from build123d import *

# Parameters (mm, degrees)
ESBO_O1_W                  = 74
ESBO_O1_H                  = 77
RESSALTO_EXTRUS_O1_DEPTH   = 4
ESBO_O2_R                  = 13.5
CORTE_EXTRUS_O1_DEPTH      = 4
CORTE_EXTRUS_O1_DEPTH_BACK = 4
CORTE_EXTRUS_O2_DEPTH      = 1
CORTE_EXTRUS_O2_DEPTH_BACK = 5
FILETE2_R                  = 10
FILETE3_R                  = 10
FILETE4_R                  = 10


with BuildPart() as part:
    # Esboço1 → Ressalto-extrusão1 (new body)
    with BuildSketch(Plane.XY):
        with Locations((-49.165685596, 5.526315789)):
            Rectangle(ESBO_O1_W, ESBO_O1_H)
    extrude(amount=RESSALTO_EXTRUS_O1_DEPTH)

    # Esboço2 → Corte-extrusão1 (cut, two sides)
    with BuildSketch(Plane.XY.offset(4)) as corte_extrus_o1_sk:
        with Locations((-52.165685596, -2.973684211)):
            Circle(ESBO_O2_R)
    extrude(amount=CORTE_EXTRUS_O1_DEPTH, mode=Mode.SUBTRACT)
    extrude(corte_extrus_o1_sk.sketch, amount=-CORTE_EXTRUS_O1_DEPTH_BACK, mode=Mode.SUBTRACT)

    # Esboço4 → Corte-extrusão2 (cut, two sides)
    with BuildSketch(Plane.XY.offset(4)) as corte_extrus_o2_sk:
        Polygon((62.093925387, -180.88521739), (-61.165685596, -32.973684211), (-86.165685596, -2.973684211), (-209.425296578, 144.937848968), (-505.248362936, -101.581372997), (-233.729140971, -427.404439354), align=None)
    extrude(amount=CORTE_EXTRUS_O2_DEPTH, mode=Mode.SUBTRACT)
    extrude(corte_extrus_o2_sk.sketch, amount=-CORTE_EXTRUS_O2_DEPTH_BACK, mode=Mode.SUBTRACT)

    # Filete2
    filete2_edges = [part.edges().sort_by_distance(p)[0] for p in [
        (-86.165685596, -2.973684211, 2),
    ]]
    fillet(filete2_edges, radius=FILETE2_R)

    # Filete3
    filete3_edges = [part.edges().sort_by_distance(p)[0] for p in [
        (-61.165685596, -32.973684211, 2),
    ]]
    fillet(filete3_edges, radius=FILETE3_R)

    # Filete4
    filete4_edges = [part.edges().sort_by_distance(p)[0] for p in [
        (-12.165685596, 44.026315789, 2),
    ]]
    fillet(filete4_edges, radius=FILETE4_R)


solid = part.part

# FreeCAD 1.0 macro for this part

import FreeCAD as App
import Part
import Sketcher

V = App.Vector
Q = App.Units.Quantity


def edges_at(feature, points):
    """Names of the edges that pass closest to the given points."""
    edges = feature.Shape.Edges
    near = lambda p: min(range(len(edges)), key=lambda i: edges[i].distToShape(Part.Vertex(*p))[0])
    return sorted({f"Edge{near(p) + 1}" for p in points})

doc = App.newDocument("Part")
params = doc.addObject("Spreadsheet::Sheet", "Params")
for row, (alias, value) in enumerate([
    ("sketch1_width", "74 mm"),
    ("sketch1_height", "77 mm"),
    ("pad1_length", "4 mm"),
    ("sketch2_diameter", "27 mm"),
    ("fillet_radius", "10 mm"),
    ("fillet2_radius", "10 mm"),
    ("fillet3_radius", "10 mm"),
], start=1):
    params.set(f"A{row}", alias)
    params.set(f"B{row}", "=" + value)
    params.setAlias(f"B{row}", alias)

body = doc.addObject("PartDesign::Body", "Body")

sketch1 = body.newObject("Sketcher::SketchObject", "Sketch")
sketch1.AttachmentSupport = (doc.getObject("XY_Plane"), [""])
sketch1.MapMode = "FlatFace"
sketch1.addGeometry(Part.LineSegment(V(-86, 44, 0), V(-86, -33, 0)), False)
sketch1.addGeometry(Part.LineSegment(V(-86, -33, 0), V(-12, -33, 0)), False)
sketch1.addGeometry(Part.LineSegment(V(-12, -33, 0), V(-12, 44, 0)), False)
sketch1.addGeometry(Part.LineSegment(V(-12, 44, 0), V(-86, 44, 0)), False)
sketch1.addConstraint(Sketcher.Constraint("Coincident", 0, 2, 1, 1))
sketch1.addConstraint(Sketcher.Constraint("Coincident", 1, 2, 2, 1))
sketch1.addConstraint(Sketcher.Constraint("Coincident", 2, 2, 3, 1))
sketch1.addConstraint(Sketcher.Constraint("Coincident", 3, 2, 0, 1))
sketch1.addConstraint(Sketcher.Constraint("Vertical", 0))
sketch1.addConstraint(Sketcher.Constraint("Horizontal", 1))
sketch1.addConstraint(Sketcher.Constraint("Vertical", 2))
sketch1.addConstraint(Sketcher.Constraint("Horizontal", 3))
sketch1.addConstraint(Sketcher.Constraint("DistanceX", 1, 1, 1, 2, Q("74 mm")))
sketch1.addConstraint(Sketcher.Constraint("DistanceY", 0, 2, 0, 1, Q("77 mm")))
sketch1.addConstraint(Sketcher.Constraint("DistanceX", 0, 2, -1, 1, Q("86.165686 mm")))
sketch1.addConstraint(Sketcher.Constraint("DistanceY", 0, 2, -1, 1, Q("32.973684 mm")))
sketch1.setExpression("Constraints[8]", "Params.sketch1_width")
sketch1.setExpression("Constraints[9]", "Params.sketch1_height")
pad1 = body.newObject("PartDesign::Pad", "Pad")
pad1.Profile = sketch1
pad1.setExpression("Length", "Params.pad1_length")

sketch2 = body.newObject("Sketcher::SketchObject", "Sketch001")
sketch2.AttachmentSupport = (doc.getObject("XY_Plane"), [""])
sketch2.MapMode = "FlatFace"
sketch2.AttachmentOffset = App.Placement(V(0, 0, 4), App.Rotation())
sketch2.addGeometry(Part.Circle(V(-52, -3, 0), V(0, 0, 1), 14), False)
sketch2.addConstraint(Sketcher.Constraint("Diameter", 0, Q("27 mm")))
sketch2.addConstraint(Sketcher.Constraint("DistanceX", 0, 3, -1, 1, Q("52.165686 mm")))
sketch2.addConstraint(Sketcher.Constraint("DistanceY", 0, 3, -1, 1, Q("2.973684 mm")))
sketch2.setExpression("Constraints[0]", "Params.sketch2_diameter")
pocket1 = body.newObject("PartDesign::Pocket", "Pocket")
pocket1.Profile = sketch2
pocket1.Type = "ThroughAll"
pocket1.Midplane = True

sketch3 = body.newObject("Sketcher::SketchObject", "Sketch002")
sketch3.AttachmentSupport = (doc.getObject("XY_Plane"), [""])
sketch3.MapMode = "FlatFace"
sketch3.AttachmentOffset = App.Placement(V(0, 0, 4), App.Rotation())
sketch3.addGeometry(Part.LineSegment(V(62, -181, 0), V(-61, -33, 0)), False)
sketch3.addGeometry(Part.LineSegment(V(-61, -33, 0), V(-86, -3, 0)), False)
sketch3.addGeometry(Part.LineSegment(V(-86, -3, 0), V(-209, 145, 0)), False)
sketch3.addGeometry(Part.LineSegment(V(-209, 145, 0), V(-505, -102, 0)), False)
sketch3.addGeometry(Part.LineSegment(V(-505, -102, 0), V(-234, -427, 0)), False)
sketch3.addGeometry(Part.LineSegment(V(-234, -427, 0), V(62, -181, 0)), False)
sketch3.addConstraint(Sketcher.Constraint("Coincident", 0, 2, 1, 1))
sketch3.addConstraint(Sketcher.Constraint("Coincident", 1, 2, 2, 1))
sketch3.addConstraint(Sketcher.Constraint("Coincident", 2, 2, 3, 1))
sketch3.addConstraint(Sketcher.Constraint("Coincident", 3, 2, 4, 1))
sketch3.addConstraint(Sketcher.Constraint("Coincident", 4, 2, 5, 1))
sketch3.addConstraint(Sketcher.Constraint("Coincident", 5, 2, 0, 1))
sketch3.addConstraint(Sketcher.Constraint("Parallel", 0, 1))
sketch3.addConstraint(Sketcher.Constraint("Parallel", 1, 2))
sketch3.addConstraint(Sketcher.Constraint("Perpendicular", 2, 3))
sketch3.addConstraint(Sketcher.Constraint("Perpendicular", 3, 4))
sketch3.addConstraint(Sketcher.Constraint("Perpendicular", 4, 5))
sketch3.addConstraint(Sketcher.Constraint("Equal", 0, 2))
sketch3.addConstraint(Sketcher.Constraint("DistanceX", 1, 2, 0, 2, Q("25 mm")))
sketch3.addConstraint(Sketcher.Constraint("DistanceY", 0, 2, 1, 2, Q("30 mm")))
sketch3.addConstraint(Sketcher.Constraint("DistanceY", -1, 1, 2, 2, Q("144.937849 mm")))
sketch3.addConstraint(Sketcher.Constraint("DistanceX", 4, 2, -1, 1, Q("233.729141 mm")))
sketch3.addConstraint(Sketcher.Constraint("DistanceY", 4, 2, -1, 1, Q("427.404439 mm")))
sketch3.addConstraint(Sketcher.Constraint("DistanceX", 2, 2, 1, 2, Q("123.259611 mm")))
pocket2 = body.newObject("PartDesign::Pocket", "Pocket001")
pocket2.Profile = sketch3
pocket2.Type = "ThroughAll"
pocket2.Midplane = True
doc.recompute()

fillet = body.newObject("PartDesign::Fillet", "Fillet")
fillet.Base = (pocket2, edges_at(pocket2, [(-86.166, -2.974, 2)]))
fillet.setExpression("Radius", "Params.fillet_radius")
doc.recompute()

fillet2 = body.newObject("PartDesign::Fillet", "Fillet001")
fillet2.Base = (fillet, edges_at(fillet, [(-61.166, -32.974, 2)]))
fillet2.setExpression("Radius", "Params.fillet2_radius")
doc.recompute()

fillet3 = body.newObject("PartDesign::Fillet", "Fillet002")
fillet3.Base = (fillet2, edges_at(fillet2, [(-12.166, 44.026, 2)]))
fillet3.setExpression("Radius", "Params.fillet3_radius")

doc.recompute()
